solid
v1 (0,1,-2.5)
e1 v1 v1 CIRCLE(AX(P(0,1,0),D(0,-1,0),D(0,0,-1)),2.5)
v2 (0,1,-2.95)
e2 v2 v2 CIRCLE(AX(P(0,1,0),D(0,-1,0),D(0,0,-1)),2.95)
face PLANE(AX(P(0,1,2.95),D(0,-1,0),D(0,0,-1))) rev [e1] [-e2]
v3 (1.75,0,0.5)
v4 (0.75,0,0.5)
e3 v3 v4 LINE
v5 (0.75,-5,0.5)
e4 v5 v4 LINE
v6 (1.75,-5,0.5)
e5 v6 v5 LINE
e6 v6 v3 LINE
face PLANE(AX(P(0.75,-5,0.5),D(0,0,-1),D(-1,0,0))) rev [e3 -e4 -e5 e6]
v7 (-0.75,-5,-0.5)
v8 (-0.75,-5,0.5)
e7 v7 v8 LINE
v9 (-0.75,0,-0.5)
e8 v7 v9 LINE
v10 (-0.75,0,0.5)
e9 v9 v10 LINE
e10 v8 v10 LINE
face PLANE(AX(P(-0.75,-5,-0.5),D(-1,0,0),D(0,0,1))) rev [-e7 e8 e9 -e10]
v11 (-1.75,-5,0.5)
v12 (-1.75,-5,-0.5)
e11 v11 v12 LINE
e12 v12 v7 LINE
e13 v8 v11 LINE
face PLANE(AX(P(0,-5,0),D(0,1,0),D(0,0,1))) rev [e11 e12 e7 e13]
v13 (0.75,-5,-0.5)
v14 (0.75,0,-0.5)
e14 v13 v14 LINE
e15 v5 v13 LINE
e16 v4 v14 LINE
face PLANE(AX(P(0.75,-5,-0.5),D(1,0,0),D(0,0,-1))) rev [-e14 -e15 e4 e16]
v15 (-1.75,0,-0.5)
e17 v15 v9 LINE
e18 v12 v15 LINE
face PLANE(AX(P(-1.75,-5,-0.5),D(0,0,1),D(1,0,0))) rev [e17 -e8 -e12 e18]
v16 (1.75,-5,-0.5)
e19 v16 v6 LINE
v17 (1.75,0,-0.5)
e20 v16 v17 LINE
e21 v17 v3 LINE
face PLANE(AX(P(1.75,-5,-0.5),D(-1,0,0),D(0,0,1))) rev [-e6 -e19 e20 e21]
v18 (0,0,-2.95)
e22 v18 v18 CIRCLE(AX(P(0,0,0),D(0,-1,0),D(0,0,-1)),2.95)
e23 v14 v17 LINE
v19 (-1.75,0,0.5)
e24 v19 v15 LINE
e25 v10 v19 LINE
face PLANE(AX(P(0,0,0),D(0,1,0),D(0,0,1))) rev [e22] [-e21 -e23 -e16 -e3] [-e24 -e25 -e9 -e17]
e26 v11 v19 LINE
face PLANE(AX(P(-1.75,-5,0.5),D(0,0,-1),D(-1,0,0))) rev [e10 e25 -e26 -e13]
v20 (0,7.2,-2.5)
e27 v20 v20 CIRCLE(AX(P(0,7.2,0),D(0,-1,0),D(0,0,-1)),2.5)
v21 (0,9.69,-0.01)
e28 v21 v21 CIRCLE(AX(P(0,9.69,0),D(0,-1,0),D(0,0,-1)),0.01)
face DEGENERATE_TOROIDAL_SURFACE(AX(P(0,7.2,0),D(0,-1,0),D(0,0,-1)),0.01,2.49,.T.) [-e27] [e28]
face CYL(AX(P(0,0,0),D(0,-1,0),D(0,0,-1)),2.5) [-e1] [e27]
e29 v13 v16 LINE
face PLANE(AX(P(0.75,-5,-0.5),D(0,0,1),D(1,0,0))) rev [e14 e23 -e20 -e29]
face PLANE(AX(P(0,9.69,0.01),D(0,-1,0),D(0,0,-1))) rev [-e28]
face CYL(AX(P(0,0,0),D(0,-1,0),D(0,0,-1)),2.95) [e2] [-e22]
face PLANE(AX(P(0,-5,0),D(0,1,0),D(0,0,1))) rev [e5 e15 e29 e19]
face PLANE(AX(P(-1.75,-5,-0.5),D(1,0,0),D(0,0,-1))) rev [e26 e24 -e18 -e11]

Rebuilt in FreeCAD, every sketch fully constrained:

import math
import FreeCAD as App
import Part
import Sketcher

V = App.Vector
Q = App.Units.Quantity


def add_polygon(sketch, points):
    """Adds a closed chain of lines whose ends are joined by coincident constraints."""
    first, n = sketch.GeometryCount, len(points)
    for a, b in zip(points, points[1:] + points[:1]):
        sketch.addGeometry(Part.LineSegment(App.Vector(*a, 0), App.Vector(*b, 0)), False)
    for i in range(n):
        sketch.addConstraint(Sketcher.Constraint("Coincident", first + i, 2, first + (i + 1) % n, 1))

doc = App.newDocument("Part")
body = doc.addObject("PartDesign::Body", "Body")

# Sketch on YZ plane
sketch1 = body.newObject("Sketcher::SketchObject", "Sketch")
sketch1.AttachmentSupport = (doc.getObject("YZ_Plane"), [""])
sketch1.MapMode = "FlatFace"
sketch1.addGeometry(Part.LineSegment(V(0, 0, 0), V(9.69, 0, 0)), False)
sketch1.addGeometry(Part.LineSegment(V(9.69, 0, 0), V(9.69, 0.01, 0)), False)
sketch1.addGeometry(Part.ArcOfCircle(Part.Circle(V(7.2, 0.01, 0), V(0, 0, 1), 2.49), math.radians(0), math.radians(90)), False)
sketch1.addGeometry(Part.LineSegment(V(7.2, 2.5, 0), V(1, 2.5, 0)), False)
sketch1.addGeometry(Part.LineSegment(V(1, 2.5, 0), V(1, 2.95, 0)), False)
sketch1.addGeometry(Part.LineSegment(V(1, 2.95, 0), V(0, 2.95, 0)), False)
sketch1.addGeometry(Part.LineSegment(V(0, 2.95, 0), V(0, 0, 0)), False)
sketch1.addConstraint(Sketcher.Constraint("Coincident", 0, 2, 1, 1))
sketch1.addConstraint(Sketcher.Constraint("Tangent", 1, 2, 2, 1))
sketch1.addConstraint(Sketcher.Constraint("Tangent", 2, 2, 3, 1))
sketch1.addConstraint(Sketcher.Constraint("Coincident", 3, 2, 4, 1))
sketch1.addConstraint(Sketcher.Constraint("Coincident", 4, 2, 5, 1))
sketch1.addConstraint(Sketcher.Constraint("Coincident", 5, 2, 6, 1))
sketch1.addConstraint(Sketcher.Constraint("Coincident", 6, 2, 0, 1))
sketch1.addConstraint(Sketcher.Constraint("Horizontal", 0))
sketch1.addConstraint(Sketcher.Constraint("Vertical", 1))
sketch1.addConstraint(Sketcher.Constraint("Horizontal", 3))
sketch1.addConstraint(Sketcher.Constraint("Vertical", 4))
sketch1.addConstraint(Sketcher.Constraint("Horizontal", 5))
sketch1.addConstraint(Sketcher.Constraint("Vertical", 6))
sketch1.addConstraint(Sketcher.Constraint("Coincident", 6, 2, -1, 1))
sketch1.addConstraint(Sketcher.Constraint("DistanceX", 5, 2, 5, 1, Q("1 mm")))
sketch1.addConstraint(Sketcher.Constraint("Radius", 2, Q("2.49 mm")))
sketch1.addConstraint(Sketcher.Constraint("DistanceX", 3, 2, 3, 1, Q("6.2 mm")))
sketch1.addConstraint(Sketcher.Constraint("DistanceY", 1, 1, 1, 2, Q("0.01 mm")))
sketch1.addConstraint(Sketcher.Constraint("DistanceY", 4, 1, 4, 2, Q("0.45 mm")))
revolution = body.newObject("PartDesign::Revolution", "Revolution")
revolution.Profile = sketch1
revolution.ReferenceAxis = (sketch1, ["H_Axis"])
revolution.Angle = 360

# Sketch on XZ plane
sketch2 = body.newObject("Sketcher::SketchObject", "Sketch001")
sketch2.AttachmentSupport = (doc.getObject("XZ_Plane"), [""])
sketch2.MapMode = "FlatFace"
add_polygon(sketch2, [(-1.75, 0.5), (-1.75, -0.5), (-0.75, -0.5), (-0.75, 0.5)])  # lines 0-3
add_polygon(sketch2, [(0.75, 0.5), (0.75, -0.5), (1.75, -0.5), (1.75, 0.5)])  # lines 4-7
sketch2.addConstraint(Sketcher.Constraint("Vertical", 0))
sketch2.addConstraint(Sketcher.Constraint("Horizontal", 1))
sketch2.addConstraint(Sketcher.Constraint("Vertical", 2))
sketch2.addConstraint(Sketcher.Constraint("Horizontal", 3))
sketch2.addConstraint(Sketcher.Constraint("Vertical", 4))
sketch2.addConstraint(Sketcher.Constraint("Horizontal", 5))
sketch2.addConstraint(Sketcher.Constraint("Vertical", 6))
sketch2.addConstraint(Sketcher.Constraint("Horizontal", 7))
sketch2.addConstraint(Sketcher.Constraint("Symmetric", 2, 2, 4, 2, -1, 1))
sketch2.addConstraint(Sketcher.Constraint("Symmetric", 0, 2, 6, 2, -1, 1))
sketch2.addConstraint(Sketcher.Constraint("Horizontal", 1, 2, 4, 2))
sketch2.addConstraint(Sketcher.Constraint("Equal", 7, 0))
sketch2.addConstraint(Sketcher.Constraint("DistanceX", 1, 1, 1, 2, Q("1 mm")))
sketch2.addConstraint(Sketcher.Constraint("DistanceX", 1, 2, 4, 2, Q("1.5 mm")))
pad1 = body.newObject("PartDesign::Pad", "Pad")
pad1.Profile = sketch2
pad1.Length = 5

doc.recompute()
